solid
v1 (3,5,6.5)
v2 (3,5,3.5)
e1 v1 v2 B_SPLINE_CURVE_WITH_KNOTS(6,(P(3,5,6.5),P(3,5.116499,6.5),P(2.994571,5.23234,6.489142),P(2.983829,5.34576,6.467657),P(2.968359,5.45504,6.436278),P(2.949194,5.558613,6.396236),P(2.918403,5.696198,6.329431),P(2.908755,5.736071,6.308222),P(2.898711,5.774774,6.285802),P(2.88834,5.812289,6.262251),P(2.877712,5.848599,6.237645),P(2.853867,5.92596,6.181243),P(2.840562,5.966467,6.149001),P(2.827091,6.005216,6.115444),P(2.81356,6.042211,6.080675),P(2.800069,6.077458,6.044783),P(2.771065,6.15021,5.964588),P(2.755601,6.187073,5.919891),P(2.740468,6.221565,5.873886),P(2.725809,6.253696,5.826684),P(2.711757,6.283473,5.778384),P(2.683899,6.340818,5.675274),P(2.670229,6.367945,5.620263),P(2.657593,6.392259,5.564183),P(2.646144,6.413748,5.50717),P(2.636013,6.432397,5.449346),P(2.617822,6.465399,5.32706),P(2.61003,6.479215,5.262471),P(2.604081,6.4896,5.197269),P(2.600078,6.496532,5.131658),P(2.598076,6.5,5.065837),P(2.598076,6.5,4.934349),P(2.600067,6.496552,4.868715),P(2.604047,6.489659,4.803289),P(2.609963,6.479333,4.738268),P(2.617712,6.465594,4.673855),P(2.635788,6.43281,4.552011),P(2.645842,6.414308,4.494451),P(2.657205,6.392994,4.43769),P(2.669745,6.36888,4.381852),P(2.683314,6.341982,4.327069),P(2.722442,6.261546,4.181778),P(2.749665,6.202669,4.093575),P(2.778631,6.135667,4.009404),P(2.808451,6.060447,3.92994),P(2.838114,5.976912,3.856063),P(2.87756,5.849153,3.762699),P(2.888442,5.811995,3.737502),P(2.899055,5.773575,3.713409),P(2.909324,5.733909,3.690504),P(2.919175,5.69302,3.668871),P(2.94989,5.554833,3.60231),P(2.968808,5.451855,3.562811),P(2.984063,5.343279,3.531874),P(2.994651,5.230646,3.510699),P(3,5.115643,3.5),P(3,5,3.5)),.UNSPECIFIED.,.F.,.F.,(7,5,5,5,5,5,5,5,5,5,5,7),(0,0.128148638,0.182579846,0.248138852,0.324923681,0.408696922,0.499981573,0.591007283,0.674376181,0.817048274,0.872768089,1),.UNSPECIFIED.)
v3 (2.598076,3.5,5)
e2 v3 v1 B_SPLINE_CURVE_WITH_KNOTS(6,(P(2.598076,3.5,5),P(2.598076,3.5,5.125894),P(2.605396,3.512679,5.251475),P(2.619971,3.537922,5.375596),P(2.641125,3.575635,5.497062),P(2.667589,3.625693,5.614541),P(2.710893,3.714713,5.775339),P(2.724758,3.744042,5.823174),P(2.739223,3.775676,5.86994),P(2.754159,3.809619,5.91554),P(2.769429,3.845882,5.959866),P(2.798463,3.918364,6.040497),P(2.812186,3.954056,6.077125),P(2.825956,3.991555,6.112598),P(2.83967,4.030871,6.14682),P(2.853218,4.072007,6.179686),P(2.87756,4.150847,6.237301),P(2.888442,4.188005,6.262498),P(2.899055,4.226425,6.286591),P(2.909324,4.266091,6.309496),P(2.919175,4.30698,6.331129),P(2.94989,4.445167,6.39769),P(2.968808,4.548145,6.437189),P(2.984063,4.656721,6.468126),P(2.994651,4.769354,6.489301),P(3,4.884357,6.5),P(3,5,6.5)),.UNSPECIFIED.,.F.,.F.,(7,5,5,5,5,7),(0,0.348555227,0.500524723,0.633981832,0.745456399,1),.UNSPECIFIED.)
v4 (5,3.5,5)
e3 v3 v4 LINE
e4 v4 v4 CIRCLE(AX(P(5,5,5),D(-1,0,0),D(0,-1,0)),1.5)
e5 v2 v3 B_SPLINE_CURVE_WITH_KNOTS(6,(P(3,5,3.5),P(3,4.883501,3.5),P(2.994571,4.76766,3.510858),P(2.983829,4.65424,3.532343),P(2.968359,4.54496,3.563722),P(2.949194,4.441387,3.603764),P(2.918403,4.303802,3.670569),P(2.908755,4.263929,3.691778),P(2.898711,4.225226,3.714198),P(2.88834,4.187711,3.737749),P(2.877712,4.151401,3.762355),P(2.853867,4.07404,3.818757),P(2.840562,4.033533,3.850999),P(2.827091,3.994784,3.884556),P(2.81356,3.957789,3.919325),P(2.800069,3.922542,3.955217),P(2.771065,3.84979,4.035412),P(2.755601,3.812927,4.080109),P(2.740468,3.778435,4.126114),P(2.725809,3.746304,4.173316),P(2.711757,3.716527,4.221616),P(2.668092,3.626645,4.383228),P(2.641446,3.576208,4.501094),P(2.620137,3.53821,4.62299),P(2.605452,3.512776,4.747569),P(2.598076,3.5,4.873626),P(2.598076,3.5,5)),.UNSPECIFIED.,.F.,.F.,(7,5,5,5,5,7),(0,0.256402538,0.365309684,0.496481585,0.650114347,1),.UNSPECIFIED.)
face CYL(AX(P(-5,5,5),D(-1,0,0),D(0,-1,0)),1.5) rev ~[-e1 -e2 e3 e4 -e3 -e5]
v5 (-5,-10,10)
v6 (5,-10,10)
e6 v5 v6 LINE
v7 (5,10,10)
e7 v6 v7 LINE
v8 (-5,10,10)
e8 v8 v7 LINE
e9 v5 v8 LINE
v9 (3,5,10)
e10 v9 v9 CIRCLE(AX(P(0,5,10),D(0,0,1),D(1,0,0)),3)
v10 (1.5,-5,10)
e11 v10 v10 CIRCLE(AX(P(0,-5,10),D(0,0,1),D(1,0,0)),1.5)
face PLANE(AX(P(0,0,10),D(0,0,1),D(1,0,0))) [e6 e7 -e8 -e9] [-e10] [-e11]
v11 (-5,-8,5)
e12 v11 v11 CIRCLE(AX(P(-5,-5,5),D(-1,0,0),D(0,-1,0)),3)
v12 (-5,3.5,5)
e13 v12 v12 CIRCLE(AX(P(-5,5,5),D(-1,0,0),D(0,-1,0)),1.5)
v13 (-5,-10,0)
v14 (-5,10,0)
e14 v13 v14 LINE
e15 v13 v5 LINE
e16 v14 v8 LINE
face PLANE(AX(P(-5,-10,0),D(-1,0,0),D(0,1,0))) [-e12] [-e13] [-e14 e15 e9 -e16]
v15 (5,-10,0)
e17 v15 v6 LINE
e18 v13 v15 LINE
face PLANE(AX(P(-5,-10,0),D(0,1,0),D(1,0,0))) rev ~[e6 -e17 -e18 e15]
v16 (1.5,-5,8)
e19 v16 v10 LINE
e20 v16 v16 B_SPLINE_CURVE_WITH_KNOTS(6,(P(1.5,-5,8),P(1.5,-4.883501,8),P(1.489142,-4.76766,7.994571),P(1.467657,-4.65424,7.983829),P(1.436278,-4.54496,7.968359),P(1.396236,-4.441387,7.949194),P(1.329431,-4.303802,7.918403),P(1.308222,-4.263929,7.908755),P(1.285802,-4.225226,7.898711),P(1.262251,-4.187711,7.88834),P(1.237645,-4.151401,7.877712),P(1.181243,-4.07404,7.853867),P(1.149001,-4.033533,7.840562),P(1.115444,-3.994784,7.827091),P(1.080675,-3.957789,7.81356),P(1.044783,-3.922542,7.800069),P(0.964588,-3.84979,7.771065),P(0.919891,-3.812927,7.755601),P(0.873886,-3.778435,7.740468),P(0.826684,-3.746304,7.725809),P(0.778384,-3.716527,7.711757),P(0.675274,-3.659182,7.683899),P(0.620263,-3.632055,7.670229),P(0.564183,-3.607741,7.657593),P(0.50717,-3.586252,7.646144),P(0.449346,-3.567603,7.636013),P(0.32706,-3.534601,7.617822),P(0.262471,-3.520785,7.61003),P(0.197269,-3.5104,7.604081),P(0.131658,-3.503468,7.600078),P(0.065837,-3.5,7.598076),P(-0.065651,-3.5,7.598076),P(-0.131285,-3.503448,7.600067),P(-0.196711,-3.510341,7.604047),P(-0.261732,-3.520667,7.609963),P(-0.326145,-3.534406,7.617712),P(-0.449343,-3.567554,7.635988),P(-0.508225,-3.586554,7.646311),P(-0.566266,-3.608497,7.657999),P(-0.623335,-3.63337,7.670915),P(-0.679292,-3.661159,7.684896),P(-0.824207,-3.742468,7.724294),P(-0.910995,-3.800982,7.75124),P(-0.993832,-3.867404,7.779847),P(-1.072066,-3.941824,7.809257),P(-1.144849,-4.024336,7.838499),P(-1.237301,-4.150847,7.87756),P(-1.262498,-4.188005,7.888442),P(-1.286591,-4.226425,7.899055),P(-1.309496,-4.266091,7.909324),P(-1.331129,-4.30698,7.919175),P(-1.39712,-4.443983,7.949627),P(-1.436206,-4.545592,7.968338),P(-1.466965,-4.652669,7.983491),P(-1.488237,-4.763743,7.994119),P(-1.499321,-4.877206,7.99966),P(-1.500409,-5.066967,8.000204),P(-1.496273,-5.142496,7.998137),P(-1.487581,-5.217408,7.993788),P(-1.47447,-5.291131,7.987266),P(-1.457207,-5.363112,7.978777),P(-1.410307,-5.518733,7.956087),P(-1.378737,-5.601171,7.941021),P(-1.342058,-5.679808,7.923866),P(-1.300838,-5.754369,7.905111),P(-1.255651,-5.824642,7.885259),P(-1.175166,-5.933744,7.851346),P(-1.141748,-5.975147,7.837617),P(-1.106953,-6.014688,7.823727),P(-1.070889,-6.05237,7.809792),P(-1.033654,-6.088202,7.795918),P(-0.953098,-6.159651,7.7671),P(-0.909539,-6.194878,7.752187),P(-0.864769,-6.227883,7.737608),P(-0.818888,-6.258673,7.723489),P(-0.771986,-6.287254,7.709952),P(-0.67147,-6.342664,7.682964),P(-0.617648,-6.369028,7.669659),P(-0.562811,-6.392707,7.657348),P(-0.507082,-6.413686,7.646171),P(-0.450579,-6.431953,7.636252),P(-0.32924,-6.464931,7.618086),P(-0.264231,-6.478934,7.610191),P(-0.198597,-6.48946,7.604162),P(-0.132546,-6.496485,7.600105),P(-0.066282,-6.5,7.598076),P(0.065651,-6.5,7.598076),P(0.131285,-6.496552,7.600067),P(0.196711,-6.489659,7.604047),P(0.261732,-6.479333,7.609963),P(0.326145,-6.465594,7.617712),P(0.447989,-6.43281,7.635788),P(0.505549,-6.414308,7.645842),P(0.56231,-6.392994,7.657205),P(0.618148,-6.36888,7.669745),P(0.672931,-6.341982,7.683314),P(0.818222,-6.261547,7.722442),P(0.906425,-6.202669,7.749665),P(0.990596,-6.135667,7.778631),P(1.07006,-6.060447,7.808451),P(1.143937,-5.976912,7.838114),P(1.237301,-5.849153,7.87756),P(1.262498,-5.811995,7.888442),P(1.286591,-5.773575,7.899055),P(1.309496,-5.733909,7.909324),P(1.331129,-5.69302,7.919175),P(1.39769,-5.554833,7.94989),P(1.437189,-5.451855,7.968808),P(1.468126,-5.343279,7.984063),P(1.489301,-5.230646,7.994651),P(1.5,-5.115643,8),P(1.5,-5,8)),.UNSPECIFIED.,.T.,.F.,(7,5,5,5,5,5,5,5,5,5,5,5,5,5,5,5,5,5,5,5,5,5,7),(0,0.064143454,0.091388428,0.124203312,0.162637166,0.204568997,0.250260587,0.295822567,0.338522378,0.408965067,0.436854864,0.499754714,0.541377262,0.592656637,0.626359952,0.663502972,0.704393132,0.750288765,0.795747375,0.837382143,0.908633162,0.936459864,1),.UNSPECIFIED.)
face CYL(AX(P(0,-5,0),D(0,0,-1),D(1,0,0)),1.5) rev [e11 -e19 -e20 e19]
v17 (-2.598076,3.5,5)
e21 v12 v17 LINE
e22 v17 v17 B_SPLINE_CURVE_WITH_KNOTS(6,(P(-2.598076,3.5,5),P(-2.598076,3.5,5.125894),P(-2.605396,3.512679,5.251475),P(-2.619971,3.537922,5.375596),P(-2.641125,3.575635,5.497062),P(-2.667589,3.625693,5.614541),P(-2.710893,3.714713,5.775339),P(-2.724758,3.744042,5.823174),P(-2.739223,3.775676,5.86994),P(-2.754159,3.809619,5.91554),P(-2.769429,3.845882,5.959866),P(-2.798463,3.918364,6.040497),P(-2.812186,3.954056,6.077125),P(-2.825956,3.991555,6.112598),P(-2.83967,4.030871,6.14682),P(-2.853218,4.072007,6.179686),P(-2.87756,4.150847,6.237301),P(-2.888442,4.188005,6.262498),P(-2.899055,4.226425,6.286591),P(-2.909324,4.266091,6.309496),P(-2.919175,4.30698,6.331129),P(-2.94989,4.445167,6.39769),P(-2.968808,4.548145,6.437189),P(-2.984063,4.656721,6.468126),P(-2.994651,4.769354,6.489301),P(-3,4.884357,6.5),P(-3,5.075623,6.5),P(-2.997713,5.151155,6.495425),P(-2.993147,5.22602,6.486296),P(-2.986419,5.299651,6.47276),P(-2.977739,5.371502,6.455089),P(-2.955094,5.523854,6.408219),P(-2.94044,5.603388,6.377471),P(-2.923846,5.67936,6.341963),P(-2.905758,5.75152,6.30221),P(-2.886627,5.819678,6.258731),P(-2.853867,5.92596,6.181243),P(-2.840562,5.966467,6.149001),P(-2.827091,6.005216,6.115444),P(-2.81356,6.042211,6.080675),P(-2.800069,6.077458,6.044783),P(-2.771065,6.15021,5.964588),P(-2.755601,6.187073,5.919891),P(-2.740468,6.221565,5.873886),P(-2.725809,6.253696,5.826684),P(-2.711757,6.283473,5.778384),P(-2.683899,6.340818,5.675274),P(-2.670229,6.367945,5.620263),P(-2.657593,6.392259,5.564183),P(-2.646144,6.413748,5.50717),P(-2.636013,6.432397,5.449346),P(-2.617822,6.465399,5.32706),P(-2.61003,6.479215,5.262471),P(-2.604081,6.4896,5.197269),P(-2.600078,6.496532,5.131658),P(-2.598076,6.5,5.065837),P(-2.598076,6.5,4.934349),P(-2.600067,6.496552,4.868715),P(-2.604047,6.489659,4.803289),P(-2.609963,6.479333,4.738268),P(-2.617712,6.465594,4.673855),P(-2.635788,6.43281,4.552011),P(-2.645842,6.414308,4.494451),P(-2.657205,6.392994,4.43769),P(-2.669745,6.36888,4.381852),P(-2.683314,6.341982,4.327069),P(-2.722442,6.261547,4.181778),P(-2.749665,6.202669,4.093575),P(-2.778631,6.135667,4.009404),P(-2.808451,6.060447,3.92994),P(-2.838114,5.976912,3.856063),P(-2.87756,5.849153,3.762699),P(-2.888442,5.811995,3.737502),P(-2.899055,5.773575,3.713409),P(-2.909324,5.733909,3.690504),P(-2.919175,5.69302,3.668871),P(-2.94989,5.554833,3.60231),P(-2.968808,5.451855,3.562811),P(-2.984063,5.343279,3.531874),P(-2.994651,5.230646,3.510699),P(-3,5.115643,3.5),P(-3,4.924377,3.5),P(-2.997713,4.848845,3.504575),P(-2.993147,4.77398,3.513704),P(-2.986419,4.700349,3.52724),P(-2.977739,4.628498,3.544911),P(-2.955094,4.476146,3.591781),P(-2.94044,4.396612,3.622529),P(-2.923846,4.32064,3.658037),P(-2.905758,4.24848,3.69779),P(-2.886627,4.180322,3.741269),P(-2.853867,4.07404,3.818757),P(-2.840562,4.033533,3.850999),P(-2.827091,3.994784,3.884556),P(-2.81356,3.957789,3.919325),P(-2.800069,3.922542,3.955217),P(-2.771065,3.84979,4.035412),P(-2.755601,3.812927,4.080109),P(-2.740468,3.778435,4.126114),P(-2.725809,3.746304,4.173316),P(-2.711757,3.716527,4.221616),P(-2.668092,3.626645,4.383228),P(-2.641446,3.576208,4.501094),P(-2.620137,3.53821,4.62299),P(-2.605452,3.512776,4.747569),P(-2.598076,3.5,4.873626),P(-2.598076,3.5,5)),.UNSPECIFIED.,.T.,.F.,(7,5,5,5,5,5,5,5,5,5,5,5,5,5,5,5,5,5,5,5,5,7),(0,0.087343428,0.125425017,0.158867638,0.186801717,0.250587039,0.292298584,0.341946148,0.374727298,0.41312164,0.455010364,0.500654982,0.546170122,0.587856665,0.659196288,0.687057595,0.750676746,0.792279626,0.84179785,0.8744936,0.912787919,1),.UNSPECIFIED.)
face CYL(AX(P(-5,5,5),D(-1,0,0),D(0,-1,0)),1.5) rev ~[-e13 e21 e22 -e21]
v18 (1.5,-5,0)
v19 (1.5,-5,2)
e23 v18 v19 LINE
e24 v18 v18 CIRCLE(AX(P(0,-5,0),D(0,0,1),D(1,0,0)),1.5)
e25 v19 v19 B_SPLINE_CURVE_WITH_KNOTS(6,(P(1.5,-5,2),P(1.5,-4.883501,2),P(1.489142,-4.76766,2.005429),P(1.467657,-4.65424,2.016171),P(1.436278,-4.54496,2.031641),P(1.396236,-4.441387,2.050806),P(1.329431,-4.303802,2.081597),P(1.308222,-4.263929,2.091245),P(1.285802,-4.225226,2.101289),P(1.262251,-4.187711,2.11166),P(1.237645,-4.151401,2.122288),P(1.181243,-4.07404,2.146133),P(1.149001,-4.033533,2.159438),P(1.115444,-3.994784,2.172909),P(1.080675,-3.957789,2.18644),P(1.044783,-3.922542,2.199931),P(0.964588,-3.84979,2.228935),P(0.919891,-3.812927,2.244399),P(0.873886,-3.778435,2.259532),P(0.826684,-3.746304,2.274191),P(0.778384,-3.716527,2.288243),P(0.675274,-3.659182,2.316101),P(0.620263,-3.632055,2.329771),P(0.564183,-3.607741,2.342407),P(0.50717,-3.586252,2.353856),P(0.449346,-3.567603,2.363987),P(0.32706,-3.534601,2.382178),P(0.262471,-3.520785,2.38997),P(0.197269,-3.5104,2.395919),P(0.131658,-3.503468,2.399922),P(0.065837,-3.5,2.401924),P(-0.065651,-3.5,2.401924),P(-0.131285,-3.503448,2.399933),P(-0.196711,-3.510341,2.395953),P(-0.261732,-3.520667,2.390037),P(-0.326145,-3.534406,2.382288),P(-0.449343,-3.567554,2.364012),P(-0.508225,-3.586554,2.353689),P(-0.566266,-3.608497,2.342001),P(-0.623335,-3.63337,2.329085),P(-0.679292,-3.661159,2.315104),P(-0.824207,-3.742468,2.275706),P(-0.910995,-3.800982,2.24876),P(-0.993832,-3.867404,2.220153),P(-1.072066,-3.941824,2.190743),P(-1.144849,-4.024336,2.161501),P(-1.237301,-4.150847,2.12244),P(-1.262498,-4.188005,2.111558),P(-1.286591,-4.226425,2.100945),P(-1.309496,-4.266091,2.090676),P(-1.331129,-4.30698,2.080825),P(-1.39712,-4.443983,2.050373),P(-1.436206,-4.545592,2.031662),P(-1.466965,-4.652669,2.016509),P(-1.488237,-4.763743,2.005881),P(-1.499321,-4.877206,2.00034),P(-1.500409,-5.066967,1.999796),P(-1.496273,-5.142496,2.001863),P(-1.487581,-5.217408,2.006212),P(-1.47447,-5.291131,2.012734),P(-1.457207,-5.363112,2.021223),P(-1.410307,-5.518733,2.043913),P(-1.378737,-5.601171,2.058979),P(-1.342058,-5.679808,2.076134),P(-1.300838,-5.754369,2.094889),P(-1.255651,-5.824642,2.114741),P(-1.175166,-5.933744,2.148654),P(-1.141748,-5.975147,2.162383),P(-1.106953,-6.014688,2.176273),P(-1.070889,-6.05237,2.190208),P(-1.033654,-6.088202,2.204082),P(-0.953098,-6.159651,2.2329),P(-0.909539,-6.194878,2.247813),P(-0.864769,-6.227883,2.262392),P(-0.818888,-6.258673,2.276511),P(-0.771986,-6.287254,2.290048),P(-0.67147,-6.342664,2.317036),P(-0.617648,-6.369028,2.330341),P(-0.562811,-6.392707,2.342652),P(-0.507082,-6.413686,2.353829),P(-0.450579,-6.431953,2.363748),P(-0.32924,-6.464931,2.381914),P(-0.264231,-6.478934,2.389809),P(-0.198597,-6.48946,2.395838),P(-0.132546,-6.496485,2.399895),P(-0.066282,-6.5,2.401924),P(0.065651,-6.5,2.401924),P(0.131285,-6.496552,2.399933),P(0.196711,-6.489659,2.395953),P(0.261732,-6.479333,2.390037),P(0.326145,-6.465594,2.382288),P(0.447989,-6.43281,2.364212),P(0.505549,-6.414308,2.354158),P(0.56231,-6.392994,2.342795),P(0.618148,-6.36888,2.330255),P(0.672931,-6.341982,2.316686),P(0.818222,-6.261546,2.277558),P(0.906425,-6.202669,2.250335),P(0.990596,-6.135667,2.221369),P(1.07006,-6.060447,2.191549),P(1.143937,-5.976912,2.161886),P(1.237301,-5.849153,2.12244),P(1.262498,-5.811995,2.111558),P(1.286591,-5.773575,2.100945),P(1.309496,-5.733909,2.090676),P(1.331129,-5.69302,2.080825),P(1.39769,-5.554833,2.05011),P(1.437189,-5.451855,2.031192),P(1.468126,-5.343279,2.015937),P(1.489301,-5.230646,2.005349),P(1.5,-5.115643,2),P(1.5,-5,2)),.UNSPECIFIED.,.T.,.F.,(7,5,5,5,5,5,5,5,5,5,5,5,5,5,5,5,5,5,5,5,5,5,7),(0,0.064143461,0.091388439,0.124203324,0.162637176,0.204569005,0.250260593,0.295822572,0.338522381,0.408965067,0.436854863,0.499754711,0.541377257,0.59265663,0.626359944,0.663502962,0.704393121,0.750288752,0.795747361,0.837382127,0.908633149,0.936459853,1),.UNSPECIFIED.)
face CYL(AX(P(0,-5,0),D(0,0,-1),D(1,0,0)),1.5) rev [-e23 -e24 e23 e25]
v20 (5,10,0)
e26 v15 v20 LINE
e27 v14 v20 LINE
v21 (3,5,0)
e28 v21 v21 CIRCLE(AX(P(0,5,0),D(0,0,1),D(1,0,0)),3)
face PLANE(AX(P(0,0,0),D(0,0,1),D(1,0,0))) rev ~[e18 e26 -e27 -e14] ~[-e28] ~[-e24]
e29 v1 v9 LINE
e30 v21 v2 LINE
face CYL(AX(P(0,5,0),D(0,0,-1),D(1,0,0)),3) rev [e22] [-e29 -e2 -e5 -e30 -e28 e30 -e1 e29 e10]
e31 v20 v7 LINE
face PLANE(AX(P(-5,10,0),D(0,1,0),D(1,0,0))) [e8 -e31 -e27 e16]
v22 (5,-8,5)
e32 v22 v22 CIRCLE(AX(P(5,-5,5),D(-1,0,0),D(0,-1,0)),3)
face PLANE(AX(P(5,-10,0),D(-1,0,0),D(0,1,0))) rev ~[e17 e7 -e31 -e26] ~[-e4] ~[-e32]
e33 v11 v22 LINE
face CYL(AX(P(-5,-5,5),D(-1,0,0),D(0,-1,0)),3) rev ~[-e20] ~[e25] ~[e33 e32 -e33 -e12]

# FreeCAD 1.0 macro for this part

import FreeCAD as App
import Part
import Sketcher
Q = App.Units.Quantity


def add_polygon(sketch, points):
    """Adds a closed chain of lines whose ends are joined by coincident constraints."""
    first, n = sketch.GeometryCount, len(points)
    for a, b in zip(points, points[1:] + points[:1]):
        sketch.addGeometry(Part.LineSegment(App.Vector(*a, 0), App.Vector(*b, 0)), False)
    for i in range(n):
        sketch.addConstraint(Sketcher.Constraint("Coincident", first + i, 2, first + (i + 1) % n, 1))

doc = App.newDocument("Part")
body = doc.addObject("PartDesign::Body", "Body")

# Sketch on XY plane
sketch1 = body.newObject("Sketcher::SketchObject", "Sketch")
sketch1.AttachmentSupport = (doc.getObject("XY_Plane"), [""])
sketch1.MapMode = "FlatFace"
add_polygon(sketch1, [(-5, 10), (-5, -10), (5, -10), (5, 10)])  # lines 0-3
sketch1.addGeometry(Part.Circle(App.Vector(0, -5, 0), App.Vector(0, 0, 1), 1.5), False)  # 4
sketch1.addGeometry(Part.Circle(App.Vector(0, 5, 0), App.Vector(0, 0, 1), 3), False)  # 5
sketch1.addConstraint([
    Sketcher.Constraint("Vertical", 0),
    Sketcher.Constraint("Horizontal", 1),
    Sketcher.Constraint("Vertical", 2),
    Sketcher.Constraint("Horizontal", 3),
    Sketcher.Constraint("Symmetric", 4, 3, 5, 3, -1, 1),
    Sketcher.Constraint("Symmetric", 0, 2, 2, 2, -1, 1),
    Sketcher.Constraint("PointOnObject", 4, 3, -2),
    Sketcher.Constraint("Diameter", 4, Q("3 mm")),
    Sketcher.Constraint("Diameter", 5, Q("6 mm")),
    Sketcher.Constraint("DistanceX", 1, 1, 1, 2, Q("10 mm")),
    Sketcher.Constraint("DistanceY", 0, 2, 0, 1, Q("20 mm")),
    Sketcher.Constraint("DistanceY", 4, 3, -1, 1, Q("5 mm")),
])
pad1 = body.newObject("PartDesign::Pad", "Pad")
pad1.Profile = sketch1
pad1.Length = 10

# Sketch on YZ plane
sketch2 = body.newObject("Sketcher::SketchObject", "Sketch001")
sketch2.AttachmentSupport = (doc.getObject("YZ_Plane"), [""])
sketch2.MapMode = "FlatFace"
sketch2.AttachmentOffset = App.Placement(App.Vector(0, 0, -5), App.Rotation())
sketch2.addGeometry([
    Part.Circle(App.Vector(-5, 5, 0), App.Vector(0, 0, 1), 3),
    Part.Circle(App.Vector(5, 5, 0), App.Vector(0, 0, 1), 1.5),
], False)
sketch2.addConstraint([
    Sketcher.Constraint("Symmetric", 0, 3, 1, 3, -2),
    Sketcher.Constraint("Diameter", 0, Q("6 mm")),
    Sketcher.Constraint("Diameter", 1, Q("3 mm")),
    Sketcher.Constraint("DistanceX", 0, 3, -1, 1, Q("5 mm")),
    Sketcher.Constraint("DistanceY", -1, 1, 0, 3, Q("5 mm")),
])
pocket1 = body.newObject("PartDesign::Pocket", "Pocket")
pocket1.Profile = sketch2
pocket1.Length = 25
pocket1.Reversed = True

doc.recompute()
